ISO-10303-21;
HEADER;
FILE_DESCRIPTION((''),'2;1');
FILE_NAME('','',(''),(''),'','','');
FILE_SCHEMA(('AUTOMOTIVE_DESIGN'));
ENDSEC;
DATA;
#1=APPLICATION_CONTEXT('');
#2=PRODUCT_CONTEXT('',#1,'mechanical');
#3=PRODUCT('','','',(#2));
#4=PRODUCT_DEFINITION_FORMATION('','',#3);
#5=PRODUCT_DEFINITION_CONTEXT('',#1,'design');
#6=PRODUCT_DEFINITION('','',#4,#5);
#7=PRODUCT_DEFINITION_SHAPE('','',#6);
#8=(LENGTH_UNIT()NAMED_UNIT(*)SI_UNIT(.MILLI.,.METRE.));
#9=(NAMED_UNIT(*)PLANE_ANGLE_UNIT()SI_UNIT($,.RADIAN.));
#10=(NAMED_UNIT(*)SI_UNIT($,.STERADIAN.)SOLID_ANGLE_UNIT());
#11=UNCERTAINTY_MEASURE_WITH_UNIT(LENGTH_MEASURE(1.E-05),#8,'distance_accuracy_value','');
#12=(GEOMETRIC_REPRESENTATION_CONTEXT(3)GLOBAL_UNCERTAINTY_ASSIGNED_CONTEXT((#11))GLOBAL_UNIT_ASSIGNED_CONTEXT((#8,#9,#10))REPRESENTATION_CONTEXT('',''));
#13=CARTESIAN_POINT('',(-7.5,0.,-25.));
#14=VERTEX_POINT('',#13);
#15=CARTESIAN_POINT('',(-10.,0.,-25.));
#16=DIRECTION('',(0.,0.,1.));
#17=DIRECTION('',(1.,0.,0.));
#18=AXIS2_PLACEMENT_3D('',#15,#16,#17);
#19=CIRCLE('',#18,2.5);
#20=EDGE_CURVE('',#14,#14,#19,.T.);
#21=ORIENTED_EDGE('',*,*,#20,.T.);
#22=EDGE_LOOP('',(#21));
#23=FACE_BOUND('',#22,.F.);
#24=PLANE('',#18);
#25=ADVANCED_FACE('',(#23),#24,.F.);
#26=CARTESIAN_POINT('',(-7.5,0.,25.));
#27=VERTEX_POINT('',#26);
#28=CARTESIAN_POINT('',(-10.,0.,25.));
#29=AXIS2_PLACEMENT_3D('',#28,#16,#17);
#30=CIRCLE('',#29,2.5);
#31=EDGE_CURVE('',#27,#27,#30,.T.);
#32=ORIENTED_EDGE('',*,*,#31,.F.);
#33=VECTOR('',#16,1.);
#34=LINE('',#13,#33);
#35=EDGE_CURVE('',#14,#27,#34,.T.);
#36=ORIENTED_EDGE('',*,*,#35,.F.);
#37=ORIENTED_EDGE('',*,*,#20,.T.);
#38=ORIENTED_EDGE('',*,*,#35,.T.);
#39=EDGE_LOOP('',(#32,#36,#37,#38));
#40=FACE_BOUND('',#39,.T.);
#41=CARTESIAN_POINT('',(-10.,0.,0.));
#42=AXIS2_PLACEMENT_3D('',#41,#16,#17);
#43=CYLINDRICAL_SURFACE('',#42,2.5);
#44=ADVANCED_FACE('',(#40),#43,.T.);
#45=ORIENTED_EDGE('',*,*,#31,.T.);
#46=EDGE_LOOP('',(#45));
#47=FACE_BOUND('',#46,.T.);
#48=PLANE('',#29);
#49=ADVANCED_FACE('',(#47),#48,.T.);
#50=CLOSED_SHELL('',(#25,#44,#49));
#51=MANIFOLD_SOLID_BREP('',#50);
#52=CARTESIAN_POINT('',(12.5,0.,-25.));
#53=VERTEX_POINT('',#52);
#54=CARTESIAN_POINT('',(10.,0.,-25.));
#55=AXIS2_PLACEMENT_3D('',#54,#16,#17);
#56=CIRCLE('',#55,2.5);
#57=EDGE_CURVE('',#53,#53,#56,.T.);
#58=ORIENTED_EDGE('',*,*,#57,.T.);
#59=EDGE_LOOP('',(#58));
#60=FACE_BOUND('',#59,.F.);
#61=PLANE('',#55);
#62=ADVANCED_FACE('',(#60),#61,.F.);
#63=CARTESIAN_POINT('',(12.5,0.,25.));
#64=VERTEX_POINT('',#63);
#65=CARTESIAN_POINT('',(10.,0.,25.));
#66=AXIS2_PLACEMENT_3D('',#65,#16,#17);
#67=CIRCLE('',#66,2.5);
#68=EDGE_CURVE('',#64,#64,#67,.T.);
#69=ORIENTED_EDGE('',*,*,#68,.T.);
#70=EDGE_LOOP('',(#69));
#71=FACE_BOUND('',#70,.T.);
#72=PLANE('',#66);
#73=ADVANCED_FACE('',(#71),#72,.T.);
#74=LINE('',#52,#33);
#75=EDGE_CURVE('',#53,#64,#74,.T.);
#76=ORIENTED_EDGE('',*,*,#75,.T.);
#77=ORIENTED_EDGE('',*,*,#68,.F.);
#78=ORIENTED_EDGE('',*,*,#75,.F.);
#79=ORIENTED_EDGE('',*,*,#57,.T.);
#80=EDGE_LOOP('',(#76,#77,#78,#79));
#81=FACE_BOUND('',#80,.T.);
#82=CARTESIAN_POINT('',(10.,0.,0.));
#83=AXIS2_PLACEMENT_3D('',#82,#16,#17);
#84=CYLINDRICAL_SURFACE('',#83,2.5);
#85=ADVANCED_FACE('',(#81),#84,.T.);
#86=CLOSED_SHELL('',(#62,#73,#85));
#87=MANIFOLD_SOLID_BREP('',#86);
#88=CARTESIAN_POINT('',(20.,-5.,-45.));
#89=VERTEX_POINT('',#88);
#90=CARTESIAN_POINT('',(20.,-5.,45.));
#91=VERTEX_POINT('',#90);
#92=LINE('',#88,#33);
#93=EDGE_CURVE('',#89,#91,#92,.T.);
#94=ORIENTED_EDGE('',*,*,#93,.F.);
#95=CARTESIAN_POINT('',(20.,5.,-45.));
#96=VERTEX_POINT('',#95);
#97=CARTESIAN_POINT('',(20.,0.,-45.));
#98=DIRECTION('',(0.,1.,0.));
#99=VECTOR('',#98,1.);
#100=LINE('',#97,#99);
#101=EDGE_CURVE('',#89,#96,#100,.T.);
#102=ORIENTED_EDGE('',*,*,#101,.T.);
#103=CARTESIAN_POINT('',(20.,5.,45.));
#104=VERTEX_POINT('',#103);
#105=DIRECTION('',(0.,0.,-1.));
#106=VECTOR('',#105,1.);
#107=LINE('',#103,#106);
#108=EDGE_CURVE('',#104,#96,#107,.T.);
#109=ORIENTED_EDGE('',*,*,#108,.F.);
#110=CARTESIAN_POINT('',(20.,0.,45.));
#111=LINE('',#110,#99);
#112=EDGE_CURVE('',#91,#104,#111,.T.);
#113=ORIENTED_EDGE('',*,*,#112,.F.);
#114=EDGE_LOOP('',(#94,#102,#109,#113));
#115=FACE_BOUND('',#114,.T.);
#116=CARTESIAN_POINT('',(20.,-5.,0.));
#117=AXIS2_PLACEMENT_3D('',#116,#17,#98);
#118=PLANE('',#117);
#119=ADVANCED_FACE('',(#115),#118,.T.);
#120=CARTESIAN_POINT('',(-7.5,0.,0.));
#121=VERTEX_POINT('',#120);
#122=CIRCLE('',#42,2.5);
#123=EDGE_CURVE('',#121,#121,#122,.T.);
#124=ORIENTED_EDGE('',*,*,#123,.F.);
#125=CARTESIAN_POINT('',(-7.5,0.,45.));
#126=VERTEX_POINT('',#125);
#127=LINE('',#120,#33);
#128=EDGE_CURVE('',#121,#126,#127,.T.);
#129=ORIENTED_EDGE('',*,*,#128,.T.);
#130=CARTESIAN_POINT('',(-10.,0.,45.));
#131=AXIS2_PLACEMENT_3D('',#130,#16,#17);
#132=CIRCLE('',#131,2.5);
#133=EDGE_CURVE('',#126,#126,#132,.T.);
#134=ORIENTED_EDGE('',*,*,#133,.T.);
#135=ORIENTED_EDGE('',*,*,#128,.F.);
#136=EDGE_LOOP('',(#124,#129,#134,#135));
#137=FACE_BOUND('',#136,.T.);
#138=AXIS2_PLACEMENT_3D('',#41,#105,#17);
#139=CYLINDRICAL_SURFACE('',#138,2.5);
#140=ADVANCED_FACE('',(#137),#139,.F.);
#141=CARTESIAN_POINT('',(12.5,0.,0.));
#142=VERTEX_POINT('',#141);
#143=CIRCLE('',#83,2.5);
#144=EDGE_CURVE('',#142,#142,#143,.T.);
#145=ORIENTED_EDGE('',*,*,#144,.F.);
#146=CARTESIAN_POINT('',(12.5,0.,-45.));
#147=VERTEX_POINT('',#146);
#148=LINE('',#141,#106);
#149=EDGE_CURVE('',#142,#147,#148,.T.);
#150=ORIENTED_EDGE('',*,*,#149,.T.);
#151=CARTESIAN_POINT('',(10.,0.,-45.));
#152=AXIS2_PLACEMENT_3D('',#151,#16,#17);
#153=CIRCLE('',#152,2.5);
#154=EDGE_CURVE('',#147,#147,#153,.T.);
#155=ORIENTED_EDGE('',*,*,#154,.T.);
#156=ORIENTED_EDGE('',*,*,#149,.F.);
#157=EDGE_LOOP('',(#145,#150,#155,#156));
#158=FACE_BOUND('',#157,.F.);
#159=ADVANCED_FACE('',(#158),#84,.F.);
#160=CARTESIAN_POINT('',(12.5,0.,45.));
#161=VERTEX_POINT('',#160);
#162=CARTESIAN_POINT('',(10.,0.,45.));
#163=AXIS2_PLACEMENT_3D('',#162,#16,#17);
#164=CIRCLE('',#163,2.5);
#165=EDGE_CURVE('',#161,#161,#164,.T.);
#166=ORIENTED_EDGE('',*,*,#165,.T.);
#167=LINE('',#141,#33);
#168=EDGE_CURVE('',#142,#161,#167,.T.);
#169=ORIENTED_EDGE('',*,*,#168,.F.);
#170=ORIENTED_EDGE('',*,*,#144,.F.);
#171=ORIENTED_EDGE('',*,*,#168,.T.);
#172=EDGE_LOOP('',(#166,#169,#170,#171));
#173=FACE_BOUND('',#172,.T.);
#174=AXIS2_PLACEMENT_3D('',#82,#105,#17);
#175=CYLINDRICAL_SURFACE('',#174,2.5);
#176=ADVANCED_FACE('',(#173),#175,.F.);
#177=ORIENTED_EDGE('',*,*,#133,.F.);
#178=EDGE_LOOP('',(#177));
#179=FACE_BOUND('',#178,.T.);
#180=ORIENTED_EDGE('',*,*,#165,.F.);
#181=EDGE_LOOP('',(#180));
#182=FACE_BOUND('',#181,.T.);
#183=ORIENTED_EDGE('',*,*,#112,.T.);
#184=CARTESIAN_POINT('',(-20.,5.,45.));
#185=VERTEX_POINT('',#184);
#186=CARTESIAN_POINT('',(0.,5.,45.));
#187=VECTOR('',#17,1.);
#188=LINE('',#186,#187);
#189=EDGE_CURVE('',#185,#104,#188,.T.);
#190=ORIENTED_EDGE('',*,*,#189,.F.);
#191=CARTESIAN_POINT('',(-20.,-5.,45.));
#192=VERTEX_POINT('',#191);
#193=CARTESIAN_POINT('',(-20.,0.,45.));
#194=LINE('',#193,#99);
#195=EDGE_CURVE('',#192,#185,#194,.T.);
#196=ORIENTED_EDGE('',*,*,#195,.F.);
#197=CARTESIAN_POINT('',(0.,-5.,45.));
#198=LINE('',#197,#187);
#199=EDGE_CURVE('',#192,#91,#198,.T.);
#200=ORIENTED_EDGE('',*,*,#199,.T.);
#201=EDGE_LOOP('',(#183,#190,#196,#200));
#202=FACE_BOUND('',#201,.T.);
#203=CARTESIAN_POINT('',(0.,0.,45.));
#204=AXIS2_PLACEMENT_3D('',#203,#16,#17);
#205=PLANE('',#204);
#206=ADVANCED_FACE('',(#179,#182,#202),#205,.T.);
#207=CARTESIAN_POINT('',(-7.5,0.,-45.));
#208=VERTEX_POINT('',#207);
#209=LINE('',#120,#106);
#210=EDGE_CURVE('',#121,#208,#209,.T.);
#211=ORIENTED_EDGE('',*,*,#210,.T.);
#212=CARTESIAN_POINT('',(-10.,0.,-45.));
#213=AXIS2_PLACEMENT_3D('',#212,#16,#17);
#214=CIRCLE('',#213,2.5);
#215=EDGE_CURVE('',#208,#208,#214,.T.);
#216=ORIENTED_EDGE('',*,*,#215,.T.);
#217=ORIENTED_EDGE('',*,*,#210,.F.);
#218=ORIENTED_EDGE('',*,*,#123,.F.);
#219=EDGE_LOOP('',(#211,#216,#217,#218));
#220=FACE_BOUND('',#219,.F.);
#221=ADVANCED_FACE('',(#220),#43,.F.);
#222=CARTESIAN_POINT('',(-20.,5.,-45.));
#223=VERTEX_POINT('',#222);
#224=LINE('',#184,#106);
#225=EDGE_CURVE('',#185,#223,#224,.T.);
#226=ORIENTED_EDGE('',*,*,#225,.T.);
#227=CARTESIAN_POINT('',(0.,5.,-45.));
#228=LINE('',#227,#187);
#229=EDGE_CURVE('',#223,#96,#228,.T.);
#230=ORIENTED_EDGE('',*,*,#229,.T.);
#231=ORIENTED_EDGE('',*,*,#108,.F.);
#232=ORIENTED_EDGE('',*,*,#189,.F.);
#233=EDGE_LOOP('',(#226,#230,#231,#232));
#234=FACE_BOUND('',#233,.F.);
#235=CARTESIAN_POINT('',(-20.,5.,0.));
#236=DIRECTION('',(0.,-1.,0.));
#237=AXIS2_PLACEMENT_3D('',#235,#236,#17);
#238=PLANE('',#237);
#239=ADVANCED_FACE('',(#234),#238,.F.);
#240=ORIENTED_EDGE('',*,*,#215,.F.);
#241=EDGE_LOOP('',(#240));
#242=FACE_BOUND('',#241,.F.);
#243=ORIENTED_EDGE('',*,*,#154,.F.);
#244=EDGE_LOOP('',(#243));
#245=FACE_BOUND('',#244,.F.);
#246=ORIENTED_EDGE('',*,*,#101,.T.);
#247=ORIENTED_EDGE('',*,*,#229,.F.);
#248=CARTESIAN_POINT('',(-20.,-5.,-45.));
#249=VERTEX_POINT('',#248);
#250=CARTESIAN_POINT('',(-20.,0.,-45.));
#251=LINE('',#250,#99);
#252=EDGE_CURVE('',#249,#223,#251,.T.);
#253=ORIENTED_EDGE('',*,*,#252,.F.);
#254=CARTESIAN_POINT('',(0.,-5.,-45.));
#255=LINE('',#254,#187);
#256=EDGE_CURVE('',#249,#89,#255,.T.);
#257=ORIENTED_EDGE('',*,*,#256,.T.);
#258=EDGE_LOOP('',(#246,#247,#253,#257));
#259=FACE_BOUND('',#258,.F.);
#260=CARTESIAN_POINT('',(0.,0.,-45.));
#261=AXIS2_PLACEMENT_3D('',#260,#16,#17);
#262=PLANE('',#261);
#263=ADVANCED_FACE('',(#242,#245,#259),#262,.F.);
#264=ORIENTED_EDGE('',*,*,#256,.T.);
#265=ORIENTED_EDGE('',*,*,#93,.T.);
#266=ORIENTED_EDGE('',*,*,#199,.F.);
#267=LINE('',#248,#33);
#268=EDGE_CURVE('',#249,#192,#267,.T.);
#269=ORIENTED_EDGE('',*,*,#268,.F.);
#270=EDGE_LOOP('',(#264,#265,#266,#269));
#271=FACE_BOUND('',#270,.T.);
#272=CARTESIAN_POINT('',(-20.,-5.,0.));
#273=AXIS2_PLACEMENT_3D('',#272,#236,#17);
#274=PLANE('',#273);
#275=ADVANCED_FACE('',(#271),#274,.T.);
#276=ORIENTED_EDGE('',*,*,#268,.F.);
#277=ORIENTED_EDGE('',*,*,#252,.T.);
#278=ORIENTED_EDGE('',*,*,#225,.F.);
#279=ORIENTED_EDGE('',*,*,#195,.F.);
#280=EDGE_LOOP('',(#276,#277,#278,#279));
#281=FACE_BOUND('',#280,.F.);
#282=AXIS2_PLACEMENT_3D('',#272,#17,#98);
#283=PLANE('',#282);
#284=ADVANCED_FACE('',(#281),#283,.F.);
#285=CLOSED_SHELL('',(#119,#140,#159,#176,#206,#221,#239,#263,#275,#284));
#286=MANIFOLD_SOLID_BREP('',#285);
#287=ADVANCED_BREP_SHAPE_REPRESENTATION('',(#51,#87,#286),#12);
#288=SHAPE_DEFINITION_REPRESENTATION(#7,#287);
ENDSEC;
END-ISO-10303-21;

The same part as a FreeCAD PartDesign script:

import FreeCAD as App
import Part
import Sketcher

V = App.Vector
Q = App.Units.Quantity

doc = App.newDocument("Part")
body = doc.addObject("PartDesign::Body", "Body")

# Sketch on XY plane
sketch1 = body.newObject("Sketcher::SketchObject", "Sketch")
sketch1.AttachmentSupport = (doc.getObject("XY_Plane"), [""])
sketch1.MapMode = "FlatFace"
sketch1.addGeometry(Part.LineSegment(V(-20, 5, 0), V(-20, -5, 0)), False)
sketch1.addGeometry(Part.LineSegment(V(-20, -5, 0), V(20, -5, 0)), False)
sketch1.addGeometry(Part.LineSegment(V(20, -5, 0), V(20, 5, 0)), False)
sketch1.addGeometry(Part.LineSegment(V(20, 5, 0), V(-20, 5, 0)), False)
sketch1.addGeometry(Part.Circle(V(-10, 0, 0), V(0, 0, 1), 2.5), False)
sketch1.addGeometry(Part.Circle(V(10, 0, 0), V(0, 0, 1), 2.5), False)
sketch1.addConstraint(Sketcher.Constraint("Coincident", 0, 2, 1, 1))
sketch1.addConstraint(Sketcher.Constraint("Coincident", 1, 2, 2, 1))
sketch1.addConstraint(Sketcher.Constraint("Coincident", 2, 2, 3, 1))
sketch1.addConstraint(Sketcher.Constraint("Coincident", 3, 2, 0, 1))
sketch1.addConstraint(Sketcher.Constraint("Vertical", 0))
sketch1.addConstraint(Sketcher.Constraint("Horizontal", 1))
sketch1.addConstraint(Sketcher.Constraint("Vertical", 2))
sketch1.addConstraint(Sketcher.Constraint("Horizontal", 3))
sketch1.addConstraint(Sketcher.Constraint("Equal", 4, 5))
sketch1.addConstraint(Sketcher.Constraint("Symmetric", 4, 3, 5, 3, -1, 1))
sketch1.addConstraint(Sketcher.Constraint("Symmetric", 0, 2, 2, 2, -1, 1))
sketch1.addConstraint(Sketcher.Constraint("PointOnObject", 4, 3, -1))
sketch1.addConstraint(Sketcher.Constraint("Diameter", 4, Q("5 mm")))
sketch1.addConstraint(Sketcher.Constraint("DistanceX", 1, 1, 1, 2, Q("40 mm")))
sketch1.addConstraint(Sketcher.Constraint("DistanceY", 0, 2, 0, 1, Q("10 mm")))
sketch1.addConstraint(Sketcher.Constraint("DistanceX", 4, 3, -1, 1, Q("10 mm")))
pad1 = body.newObject("PartDesign::Pad", "Pad")
pad1.Profile = sketch1
pad1.Type = "TwoLengths"
pad1.Length = 45
pad1.Length2 = 45
body2 = doc.addObject("PartDesign::Body", "Body001")
body2.AllowCompound = True

# Sketch on XY plane
sketch2 = body2.newObject("Sketcher::SketchObject", "Sketch001")
sketch2.AttachmentSupport = (doc.getObject("XY_Plane001"), [""])
sketch2.MapMode = "FlatFace"
sketch2.addGeometry(Part.Circle(V(-10, 0, 0), V(0, 0, 1), 2.5), False)
sketch2.addGeometry(Part.Circle(V(10, 0, 0), V(0, 0, 1), 2.5), False)
sketch2.addConstraint(Sketcher.Constraint("Equal", 0, 1))
sketch2.addConstraint(Sketcher.Constraint("Symmetric", 0, 3, 1, 3, -1, 1))
sketch2.addConstraint(Sketcher.Constraint("PointOnObject", 0, 3, -1))
sketch2.addConstraint(Sketcher.Constraint("Diameter", 0, Q("5 mm")))
sketch2.addConstraint(Sketcher.Constraint("DistanceX", 0, 3, -1, 1, Q("10 mm")))
pad2 = body2.newObject("PartDesign::Pad", "Pad001")
pad2.Profile = sketch2
pad2.Type = "TwoLengths"
pad2.Length = 25
pad2.Length2 = 25

doc.recompute()
